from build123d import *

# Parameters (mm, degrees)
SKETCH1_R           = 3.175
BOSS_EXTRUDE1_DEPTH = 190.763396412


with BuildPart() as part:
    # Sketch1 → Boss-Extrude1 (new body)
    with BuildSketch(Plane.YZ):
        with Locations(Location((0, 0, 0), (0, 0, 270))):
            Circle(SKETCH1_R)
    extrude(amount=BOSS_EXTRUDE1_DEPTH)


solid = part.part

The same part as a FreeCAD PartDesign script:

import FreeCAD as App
import Part
import Sketcher
Q = App.Units.Quantity

doc = App.newDocument("Part")
body = doc.addObject("PartDesign::Body", "Body")

# Sketch on YZ plane
sketch1 = body.newObject("Sketcher::SketchObject", "Sketch")
sketch1.AttachmentSupport = (doc.getObject("YZ_Plane"), [""])
sketch1.MapMode = "FlatFace"
sketch1.addGeometry(Part.Circle(App.Vector(0, 0, 0), App.Vector(0, 0, 1), 3.2), False)
sketch1.addConstraint([
    Sketcher.Constraint("Coincident", 0, 3, -1, 1),
    Sketcher.Constraint("Diameter", 0, Q("0.25 in")),
])
pad1 = body.newObject("PartDesign::Pad", "Pad")
pad1.Profile = sketch1
pad1.Length = 190.763396

doc.recompute()
